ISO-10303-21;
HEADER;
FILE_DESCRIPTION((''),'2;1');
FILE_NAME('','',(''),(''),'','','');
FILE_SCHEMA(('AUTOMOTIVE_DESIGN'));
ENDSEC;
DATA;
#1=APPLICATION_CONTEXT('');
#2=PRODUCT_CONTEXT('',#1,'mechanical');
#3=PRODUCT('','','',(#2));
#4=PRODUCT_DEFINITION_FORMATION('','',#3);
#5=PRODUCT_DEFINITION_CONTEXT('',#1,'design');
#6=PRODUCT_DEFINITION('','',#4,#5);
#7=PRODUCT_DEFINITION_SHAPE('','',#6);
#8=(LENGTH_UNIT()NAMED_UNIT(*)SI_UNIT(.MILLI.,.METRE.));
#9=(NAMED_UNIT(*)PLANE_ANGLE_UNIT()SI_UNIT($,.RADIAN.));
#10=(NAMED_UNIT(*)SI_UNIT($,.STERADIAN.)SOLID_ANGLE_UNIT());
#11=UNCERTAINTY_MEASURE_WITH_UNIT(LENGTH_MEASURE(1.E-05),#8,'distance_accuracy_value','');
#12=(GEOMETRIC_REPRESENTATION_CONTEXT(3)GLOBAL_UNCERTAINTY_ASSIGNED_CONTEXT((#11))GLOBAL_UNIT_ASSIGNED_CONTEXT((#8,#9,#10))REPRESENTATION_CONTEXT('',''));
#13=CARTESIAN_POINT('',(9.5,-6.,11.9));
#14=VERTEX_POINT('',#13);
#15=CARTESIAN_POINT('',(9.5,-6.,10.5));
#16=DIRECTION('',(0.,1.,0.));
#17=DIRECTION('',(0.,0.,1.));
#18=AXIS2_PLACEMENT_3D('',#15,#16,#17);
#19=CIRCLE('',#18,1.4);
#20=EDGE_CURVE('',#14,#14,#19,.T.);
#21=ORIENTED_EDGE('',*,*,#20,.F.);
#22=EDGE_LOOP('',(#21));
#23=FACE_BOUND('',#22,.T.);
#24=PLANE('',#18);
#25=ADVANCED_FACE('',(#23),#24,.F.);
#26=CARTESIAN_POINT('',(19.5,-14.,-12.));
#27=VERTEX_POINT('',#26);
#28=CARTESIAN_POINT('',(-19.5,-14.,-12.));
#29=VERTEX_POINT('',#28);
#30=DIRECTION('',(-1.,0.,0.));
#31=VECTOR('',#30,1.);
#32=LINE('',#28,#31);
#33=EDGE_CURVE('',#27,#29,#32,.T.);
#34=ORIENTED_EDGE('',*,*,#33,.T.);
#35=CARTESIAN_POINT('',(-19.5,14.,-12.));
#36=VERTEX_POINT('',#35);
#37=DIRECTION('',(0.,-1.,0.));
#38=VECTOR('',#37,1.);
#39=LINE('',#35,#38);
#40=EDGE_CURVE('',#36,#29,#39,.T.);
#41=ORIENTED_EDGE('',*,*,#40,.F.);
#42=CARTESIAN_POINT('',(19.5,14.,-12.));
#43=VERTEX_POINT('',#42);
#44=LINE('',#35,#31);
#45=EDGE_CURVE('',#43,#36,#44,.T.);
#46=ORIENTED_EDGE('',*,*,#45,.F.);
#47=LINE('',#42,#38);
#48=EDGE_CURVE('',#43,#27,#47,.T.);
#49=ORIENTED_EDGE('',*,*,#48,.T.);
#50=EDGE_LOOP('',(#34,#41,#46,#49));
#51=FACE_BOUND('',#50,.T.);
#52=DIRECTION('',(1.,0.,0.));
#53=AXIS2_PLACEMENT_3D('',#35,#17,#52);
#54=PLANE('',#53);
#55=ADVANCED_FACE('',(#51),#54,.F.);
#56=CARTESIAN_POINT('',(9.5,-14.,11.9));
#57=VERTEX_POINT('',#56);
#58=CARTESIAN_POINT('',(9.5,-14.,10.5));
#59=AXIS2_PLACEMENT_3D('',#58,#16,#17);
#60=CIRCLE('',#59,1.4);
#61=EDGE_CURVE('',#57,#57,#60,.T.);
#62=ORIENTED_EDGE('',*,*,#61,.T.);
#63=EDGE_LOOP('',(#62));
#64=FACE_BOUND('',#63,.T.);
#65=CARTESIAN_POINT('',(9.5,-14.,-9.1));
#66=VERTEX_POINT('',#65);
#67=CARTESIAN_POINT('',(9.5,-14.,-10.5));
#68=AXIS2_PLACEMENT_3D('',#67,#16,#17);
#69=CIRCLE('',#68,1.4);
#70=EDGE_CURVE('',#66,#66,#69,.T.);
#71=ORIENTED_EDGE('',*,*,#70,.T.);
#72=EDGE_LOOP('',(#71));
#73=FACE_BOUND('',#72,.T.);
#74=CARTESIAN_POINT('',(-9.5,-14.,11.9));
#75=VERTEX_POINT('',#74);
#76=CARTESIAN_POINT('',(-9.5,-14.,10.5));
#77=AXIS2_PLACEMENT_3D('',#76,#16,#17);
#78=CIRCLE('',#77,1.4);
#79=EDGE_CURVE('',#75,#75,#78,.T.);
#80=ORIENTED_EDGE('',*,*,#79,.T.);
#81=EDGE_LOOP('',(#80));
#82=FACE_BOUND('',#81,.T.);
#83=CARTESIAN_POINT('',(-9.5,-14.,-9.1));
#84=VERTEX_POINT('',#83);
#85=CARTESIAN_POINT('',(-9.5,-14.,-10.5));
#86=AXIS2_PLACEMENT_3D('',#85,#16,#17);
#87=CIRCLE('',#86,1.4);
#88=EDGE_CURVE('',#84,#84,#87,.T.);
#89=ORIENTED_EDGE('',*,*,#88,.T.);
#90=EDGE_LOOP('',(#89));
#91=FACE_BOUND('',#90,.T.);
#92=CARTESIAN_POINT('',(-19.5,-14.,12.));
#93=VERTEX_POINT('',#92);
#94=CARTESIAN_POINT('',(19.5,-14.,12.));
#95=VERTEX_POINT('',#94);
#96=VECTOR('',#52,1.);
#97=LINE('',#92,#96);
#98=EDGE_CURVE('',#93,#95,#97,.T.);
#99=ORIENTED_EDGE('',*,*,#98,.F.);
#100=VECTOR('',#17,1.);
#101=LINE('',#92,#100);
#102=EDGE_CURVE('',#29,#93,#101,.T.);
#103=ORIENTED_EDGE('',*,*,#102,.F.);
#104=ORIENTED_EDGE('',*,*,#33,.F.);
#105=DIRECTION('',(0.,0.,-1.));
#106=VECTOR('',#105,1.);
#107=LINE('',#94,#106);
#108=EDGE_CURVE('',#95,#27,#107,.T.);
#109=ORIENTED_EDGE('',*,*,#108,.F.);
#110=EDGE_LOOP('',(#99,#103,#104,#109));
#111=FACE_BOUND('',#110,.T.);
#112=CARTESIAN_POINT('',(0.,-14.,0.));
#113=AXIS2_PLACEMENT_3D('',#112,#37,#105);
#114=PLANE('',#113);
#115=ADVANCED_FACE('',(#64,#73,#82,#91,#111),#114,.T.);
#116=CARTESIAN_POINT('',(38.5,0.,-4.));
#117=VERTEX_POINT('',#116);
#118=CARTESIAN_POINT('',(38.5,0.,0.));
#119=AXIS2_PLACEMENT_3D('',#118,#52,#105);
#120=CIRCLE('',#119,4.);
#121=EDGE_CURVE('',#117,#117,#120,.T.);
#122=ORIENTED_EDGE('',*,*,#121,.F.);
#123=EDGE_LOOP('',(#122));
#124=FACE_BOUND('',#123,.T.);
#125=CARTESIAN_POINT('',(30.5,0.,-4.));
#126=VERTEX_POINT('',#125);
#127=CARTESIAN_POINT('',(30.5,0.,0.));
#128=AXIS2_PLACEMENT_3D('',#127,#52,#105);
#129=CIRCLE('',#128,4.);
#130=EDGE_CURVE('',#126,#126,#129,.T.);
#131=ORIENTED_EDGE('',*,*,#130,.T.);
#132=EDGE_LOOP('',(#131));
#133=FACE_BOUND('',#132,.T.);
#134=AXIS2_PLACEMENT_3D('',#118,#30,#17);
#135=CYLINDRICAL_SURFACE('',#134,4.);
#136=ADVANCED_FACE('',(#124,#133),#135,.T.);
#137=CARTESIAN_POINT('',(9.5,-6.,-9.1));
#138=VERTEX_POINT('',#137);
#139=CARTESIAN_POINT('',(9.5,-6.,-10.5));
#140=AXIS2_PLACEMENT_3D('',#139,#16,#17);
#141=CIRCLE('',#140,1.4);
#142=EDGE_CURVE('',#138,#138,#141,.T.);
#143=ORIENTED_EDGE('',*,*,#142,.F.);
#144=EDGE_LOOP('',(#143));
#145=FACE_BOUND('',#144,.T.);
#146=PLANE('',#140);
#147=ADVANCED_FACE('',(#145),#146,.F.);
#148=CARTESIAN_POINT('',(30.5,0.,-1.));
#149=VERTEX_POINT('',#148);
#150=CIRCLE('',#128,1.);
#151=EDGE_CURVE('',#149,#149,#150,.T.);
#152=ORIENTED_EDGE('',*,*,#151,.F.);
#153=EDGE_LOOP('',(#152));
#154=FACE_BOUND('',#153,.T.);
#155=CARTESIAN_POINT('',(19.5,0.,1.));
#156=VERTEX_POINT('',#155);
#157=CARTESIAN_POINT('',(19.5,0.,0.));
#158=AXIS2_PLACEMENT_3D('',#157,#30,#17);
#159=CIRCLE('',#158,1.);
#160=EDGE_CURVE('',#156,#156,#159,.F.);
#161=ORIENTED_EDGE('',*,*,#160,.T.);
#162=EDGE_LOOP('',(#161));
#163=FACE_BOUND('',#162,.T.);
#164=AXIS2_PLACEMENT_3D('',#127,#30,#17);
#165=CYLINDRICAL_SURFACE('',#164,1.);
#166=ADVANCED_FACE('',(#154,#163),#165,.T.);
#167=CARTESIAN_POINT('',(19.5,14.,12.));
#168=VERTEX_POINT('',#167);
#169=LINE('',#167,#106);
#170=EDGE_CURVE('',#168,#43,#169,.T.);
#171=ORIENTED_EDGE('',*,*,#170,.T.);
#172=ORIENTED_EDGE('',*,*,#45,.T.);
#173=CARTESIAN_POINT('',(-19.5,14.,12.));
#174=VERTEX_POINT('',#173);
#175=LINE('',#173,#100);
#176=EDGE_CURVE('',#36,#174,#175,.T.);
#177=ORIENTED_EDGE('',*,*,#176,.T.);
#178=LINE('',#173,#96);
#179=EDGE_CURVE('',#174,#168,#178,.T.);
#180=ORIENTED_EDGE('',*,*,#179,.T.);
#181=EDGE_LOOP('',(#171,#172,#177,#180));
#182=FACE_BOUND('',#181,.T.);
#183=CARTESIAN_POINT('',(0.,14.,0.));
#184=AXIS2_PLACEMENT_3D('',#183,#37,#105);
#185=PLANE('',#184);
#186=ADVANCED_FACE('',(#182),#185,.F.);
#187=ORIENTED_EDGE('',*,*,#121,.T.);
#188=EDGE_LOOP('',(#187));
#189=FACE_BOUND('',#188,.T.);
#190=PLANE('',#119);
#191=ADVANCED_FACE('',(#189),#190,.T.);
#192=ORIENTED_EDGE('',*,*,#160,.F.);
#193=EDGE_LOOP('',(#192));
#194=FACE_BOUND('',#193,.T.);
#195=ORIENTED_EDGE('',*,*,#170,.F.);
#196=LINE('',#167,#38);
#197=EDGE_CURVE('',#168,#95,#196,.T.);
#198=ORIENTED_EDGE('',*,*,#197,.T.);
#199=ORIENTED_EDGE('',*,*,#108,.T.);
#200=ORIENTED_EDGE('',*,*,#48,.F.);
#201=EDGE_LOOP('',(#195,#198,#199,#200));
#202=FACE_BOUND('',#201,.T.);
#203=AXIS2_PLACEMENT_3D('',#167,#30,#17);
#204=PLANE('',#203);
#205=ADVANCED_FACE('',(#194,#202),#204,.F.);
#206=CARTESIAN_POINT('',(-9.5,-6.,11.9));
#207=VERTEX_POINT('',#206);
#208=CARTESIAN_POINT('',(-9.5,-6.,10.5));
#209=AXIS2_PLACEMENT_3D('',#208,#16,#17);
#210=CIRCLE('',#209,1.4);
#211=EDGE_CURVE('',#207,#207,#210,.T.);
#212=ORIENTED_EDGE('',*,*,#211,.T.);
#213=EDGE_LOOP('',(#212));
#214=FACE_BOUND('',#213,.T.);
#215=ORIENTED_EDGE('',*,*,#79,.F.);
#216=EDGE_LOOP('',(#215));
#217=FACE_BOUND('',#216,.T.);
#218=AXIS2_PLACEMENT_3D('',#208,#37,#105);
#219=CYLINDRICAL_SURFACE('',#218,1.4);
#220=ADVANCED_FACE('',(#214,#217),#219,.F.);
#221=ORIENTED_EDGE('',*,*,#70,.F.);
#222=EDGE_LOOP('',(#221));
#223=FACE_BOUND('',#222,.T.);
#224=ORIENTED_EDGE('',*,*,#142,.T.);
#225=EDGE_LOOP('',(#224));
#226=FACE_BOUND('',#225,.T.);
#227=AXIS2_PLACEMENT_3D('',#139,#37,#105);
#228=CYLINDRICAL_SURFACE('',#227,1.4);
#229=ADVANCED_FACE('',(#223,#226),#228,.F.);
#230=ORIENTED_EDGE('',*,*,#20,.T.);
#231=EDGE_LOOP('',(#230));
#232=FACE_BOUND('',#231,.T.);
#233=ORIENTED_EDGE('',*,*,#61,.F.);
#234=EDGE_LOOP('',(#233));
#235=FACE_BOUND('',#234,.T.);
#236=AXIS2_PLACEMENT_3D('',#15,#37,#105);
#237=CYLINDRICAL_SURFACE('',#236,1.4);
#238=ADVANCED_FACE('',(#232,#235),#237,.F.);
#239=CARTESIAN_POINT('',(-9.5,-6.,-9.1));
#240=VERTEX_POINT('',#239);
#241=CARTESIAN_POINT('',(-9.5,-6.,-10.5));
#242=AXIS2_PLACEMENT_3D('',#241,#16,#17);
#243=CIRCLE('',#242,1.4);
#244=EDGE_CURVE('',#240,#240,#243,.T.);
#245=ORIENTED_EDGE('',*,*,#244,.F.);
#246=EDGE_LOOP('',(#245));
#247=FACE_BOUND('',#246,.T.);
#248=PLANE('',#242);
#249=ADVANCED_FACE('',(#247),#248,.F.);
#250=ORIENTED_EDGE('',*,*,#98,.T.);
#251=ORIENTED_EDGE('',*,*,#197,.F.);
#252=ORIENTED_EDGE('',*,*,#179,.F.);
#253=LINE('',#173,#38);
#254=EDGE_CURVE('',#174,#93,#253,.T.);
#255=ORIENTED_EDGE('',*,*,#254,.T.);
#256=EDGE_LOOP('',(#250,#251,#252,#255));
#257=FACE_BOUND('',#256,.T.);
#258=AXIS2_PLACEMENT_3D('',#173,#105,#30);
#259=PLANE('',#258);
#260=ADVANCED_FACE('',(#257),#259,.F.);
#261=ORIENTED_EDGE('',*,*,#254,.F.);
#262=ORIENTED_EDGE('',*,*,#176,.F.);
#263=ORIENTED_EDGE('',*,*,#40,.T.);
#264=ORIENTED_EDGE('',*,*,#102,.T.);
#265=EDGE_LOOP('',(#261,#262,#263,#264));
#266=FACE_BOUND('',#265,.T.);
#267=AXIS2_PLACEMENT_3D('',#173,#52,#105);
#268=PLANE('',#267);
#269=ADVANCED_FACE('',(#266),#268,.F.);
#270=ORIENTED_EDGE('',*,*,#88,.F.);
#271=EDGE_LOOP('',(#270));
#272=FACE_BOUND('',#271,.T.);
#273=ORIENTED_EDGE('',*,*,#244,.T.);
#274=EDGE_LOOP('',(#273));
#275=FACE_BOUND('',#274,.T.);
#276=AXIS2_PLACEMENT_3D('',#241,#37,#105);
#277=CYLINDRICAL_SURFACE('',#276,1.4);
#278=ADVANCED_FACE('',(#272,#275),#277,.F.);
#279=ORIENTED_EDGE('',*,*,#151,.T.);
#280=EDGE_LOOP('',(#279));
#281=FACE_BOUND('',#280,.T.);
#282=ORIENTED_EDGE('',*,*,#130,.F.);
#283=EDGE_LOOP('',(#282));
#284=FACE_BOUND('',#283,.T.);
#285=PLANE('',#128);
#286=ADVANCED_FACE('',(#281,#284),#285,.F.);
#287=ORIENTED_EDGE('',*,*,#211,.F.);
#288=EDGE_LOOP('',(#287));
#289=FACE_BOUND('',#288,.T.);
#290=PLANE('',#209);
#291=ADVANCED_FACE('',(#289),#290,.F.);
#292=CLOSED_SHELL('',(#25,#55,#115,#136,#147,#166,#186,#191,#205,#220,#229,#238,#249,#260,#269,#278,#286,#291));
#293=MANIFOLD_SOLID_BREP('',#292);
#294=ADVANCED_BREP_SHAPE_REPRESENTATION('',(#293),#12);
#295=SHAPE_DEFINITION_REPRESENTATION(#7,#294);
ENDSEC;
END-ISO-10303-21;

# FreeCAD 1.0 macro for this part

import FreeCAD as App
import Part
import Sketcher
from FreeCAD import Vector


def add_polygon(sketch, points):
    """Adds a closed chain of lines whose ends are joined by coincident constraints."""
    first, n = sketch.GeometryCount, len(points)
    for a, b in zip(points, points[1:] + points[:1]):
        sketch.addGeometry(Part.LineSegment(App.Vector(*a, 0), App.Vector(*b, 0)), False)
    for i in range(n):
        sketch.addConstraint(Sketcher.Constraint("Coincident", first + i, 2, first + (i + 1) % n, 1))

doc = App.newDocument("Part")
body = doc.addObject("PartDesign::Body", "Body")

# Sketch on XZ plane
sketch1 = body.newObject("Sketcher::SketchObject", "Sketch")
sketch1.AttachmentSupport = (doc.getObject("XZ_Plane"), [""])
sketch1.MapMode = "FlatFace"
add_polygon(sketch1, [(-19.5, -12), (-19.5, 12), (19.5, 12), (19.5, -12)])  # lines 0-3
sketch1.addConstraint([
    Sketcher.Constraint("Vertical", 0),
    Sketcher.Constraint("Horizontal", 1),
    Sketcher.Constraint("Vertical", 2),
    Sketcher.Constraint("Horizontal", 3),
    Sketcher.Constraint("Symmetric", 0, 2, 2, 2, -1, 1),
    Sketcher.Constraint("DistanceX", 1, 1, 1, 2, 39.0),
    Sketcher.Constraint("DistanceY", 0, 1, 0, 2, 24.0),
])
pad1 = body.newObject("PartDesign::Pad", "Pad")
pad1.Profile = sketch1
pad1.Length = 28
pad1.Midplane = True

# Sketch on YZ plane
sketch2 = body.newObject("Sketcher::SketchObject", "Sketch001")
sketch2.AttachmentSupport = (doc.getObject("YZ_Plane"), [""])
sketch2.MapMode = "FlatFace"
sketch2.AttachmentOffset = App.Placement(Vector(0, 0, 19.5), App.Rotation())
sketch2.addGeometry(Part.Circle(Vector(0, 0, 0), Vector(0, 0, 1), 1), False)
sketch2.addConstraint([
    Sketcher.Constraint("Coincident", 0, 3, -1, 1),
    Sketcher.Constraint("Diameter", 0, 2.0),
])
pad2 = body.newObject("PartDesign::Pad", "Pad001")
pad2.Profile = sketch2
pad2.Length = 11

# Sketch on YZ plane
sketch3 = body.newObject("Sketcher::SketchObject", "Sketch002")
sketch3.AttachmentSupport = (doc.getObject("YZ_Plane"), [""])
sketch3.MapMode = "FlatFace"
sketch3.AttachmentOffset = App.Placement(Vector(0, 0, 30.5), App.Rotation())
sketch3.addGeometry(Part.Circle(Vector(0, 0, 0), Vector(0, 0, 1), 4), False)
sketch3.addConstraint([
    Sketcher.Constraint("Coincident", 0, 3, -1, 1),
    Sketcher.Constraint("Diameter", 0, 8.0),
])
pad3 = body.newObject("PartDesign::Pad", "Pad002")
pad3.Profile = sketch3
pad3.Length = 8

# Sketch on XZ plane
sketch4 = body.newObject("Sketcher::SketchObject", "Sketch003")
sketch4.AttachmentSupport = (doc.getObject("XZ_Plane"), [""])
sketch4.MapMode = "FlatFace"
sketch4.AttachmentOffset = App.Placement(Vector(0, 0, 14), App.Rotation())
sketch4.addGeometry([
    Part.Circle(Vector(-9.5, -10.5, 0), Vector(0, 0, 1), 1.4),
    Part.Circle(Vector(-9.5, 10.5, 0), Vector(0, 0, 1), 1.4),
    Part.Circle(Vector(9.5, -10.5, 0), Vector(0, 0, 1), 1.4),
    Part.Circle(Vector(9.5, 10.5, 0), Vector(0, 0, 1), 1.4),
], False)
sketch4.addConstraint([
    Sketcher.Constraint("Equal", 0, 1),
    Sketcher.Constraint("Equal", 1, 2),
    Sketcher.Constraint("Equal", 2, 3),
    Sketcher.Constraint("Symmetric", 1, 3, 2, 3, -1, 1),
    Sketcher.Constraint("Symmetric", 0, 3, 3, 3, -1, 1),
    Sketcher.Constraint("Symmetric", 0, 3, 2, 3, -2),
    Sketcher.Constraint("Diameter", 0, 2.8),
    Sketcher.Constraint("DistanceY", 0, 3, 1, 3, 21.0),
    Sketcher.Constraint("DistanceX", 0, 3, 2, 3, 19.0),
])
pocket1 = body.newObject("PartDesign::Pocket", "Pocket")
pocket1.Profile = sketch4
pocket1.Length = 8

doc.recompute()
